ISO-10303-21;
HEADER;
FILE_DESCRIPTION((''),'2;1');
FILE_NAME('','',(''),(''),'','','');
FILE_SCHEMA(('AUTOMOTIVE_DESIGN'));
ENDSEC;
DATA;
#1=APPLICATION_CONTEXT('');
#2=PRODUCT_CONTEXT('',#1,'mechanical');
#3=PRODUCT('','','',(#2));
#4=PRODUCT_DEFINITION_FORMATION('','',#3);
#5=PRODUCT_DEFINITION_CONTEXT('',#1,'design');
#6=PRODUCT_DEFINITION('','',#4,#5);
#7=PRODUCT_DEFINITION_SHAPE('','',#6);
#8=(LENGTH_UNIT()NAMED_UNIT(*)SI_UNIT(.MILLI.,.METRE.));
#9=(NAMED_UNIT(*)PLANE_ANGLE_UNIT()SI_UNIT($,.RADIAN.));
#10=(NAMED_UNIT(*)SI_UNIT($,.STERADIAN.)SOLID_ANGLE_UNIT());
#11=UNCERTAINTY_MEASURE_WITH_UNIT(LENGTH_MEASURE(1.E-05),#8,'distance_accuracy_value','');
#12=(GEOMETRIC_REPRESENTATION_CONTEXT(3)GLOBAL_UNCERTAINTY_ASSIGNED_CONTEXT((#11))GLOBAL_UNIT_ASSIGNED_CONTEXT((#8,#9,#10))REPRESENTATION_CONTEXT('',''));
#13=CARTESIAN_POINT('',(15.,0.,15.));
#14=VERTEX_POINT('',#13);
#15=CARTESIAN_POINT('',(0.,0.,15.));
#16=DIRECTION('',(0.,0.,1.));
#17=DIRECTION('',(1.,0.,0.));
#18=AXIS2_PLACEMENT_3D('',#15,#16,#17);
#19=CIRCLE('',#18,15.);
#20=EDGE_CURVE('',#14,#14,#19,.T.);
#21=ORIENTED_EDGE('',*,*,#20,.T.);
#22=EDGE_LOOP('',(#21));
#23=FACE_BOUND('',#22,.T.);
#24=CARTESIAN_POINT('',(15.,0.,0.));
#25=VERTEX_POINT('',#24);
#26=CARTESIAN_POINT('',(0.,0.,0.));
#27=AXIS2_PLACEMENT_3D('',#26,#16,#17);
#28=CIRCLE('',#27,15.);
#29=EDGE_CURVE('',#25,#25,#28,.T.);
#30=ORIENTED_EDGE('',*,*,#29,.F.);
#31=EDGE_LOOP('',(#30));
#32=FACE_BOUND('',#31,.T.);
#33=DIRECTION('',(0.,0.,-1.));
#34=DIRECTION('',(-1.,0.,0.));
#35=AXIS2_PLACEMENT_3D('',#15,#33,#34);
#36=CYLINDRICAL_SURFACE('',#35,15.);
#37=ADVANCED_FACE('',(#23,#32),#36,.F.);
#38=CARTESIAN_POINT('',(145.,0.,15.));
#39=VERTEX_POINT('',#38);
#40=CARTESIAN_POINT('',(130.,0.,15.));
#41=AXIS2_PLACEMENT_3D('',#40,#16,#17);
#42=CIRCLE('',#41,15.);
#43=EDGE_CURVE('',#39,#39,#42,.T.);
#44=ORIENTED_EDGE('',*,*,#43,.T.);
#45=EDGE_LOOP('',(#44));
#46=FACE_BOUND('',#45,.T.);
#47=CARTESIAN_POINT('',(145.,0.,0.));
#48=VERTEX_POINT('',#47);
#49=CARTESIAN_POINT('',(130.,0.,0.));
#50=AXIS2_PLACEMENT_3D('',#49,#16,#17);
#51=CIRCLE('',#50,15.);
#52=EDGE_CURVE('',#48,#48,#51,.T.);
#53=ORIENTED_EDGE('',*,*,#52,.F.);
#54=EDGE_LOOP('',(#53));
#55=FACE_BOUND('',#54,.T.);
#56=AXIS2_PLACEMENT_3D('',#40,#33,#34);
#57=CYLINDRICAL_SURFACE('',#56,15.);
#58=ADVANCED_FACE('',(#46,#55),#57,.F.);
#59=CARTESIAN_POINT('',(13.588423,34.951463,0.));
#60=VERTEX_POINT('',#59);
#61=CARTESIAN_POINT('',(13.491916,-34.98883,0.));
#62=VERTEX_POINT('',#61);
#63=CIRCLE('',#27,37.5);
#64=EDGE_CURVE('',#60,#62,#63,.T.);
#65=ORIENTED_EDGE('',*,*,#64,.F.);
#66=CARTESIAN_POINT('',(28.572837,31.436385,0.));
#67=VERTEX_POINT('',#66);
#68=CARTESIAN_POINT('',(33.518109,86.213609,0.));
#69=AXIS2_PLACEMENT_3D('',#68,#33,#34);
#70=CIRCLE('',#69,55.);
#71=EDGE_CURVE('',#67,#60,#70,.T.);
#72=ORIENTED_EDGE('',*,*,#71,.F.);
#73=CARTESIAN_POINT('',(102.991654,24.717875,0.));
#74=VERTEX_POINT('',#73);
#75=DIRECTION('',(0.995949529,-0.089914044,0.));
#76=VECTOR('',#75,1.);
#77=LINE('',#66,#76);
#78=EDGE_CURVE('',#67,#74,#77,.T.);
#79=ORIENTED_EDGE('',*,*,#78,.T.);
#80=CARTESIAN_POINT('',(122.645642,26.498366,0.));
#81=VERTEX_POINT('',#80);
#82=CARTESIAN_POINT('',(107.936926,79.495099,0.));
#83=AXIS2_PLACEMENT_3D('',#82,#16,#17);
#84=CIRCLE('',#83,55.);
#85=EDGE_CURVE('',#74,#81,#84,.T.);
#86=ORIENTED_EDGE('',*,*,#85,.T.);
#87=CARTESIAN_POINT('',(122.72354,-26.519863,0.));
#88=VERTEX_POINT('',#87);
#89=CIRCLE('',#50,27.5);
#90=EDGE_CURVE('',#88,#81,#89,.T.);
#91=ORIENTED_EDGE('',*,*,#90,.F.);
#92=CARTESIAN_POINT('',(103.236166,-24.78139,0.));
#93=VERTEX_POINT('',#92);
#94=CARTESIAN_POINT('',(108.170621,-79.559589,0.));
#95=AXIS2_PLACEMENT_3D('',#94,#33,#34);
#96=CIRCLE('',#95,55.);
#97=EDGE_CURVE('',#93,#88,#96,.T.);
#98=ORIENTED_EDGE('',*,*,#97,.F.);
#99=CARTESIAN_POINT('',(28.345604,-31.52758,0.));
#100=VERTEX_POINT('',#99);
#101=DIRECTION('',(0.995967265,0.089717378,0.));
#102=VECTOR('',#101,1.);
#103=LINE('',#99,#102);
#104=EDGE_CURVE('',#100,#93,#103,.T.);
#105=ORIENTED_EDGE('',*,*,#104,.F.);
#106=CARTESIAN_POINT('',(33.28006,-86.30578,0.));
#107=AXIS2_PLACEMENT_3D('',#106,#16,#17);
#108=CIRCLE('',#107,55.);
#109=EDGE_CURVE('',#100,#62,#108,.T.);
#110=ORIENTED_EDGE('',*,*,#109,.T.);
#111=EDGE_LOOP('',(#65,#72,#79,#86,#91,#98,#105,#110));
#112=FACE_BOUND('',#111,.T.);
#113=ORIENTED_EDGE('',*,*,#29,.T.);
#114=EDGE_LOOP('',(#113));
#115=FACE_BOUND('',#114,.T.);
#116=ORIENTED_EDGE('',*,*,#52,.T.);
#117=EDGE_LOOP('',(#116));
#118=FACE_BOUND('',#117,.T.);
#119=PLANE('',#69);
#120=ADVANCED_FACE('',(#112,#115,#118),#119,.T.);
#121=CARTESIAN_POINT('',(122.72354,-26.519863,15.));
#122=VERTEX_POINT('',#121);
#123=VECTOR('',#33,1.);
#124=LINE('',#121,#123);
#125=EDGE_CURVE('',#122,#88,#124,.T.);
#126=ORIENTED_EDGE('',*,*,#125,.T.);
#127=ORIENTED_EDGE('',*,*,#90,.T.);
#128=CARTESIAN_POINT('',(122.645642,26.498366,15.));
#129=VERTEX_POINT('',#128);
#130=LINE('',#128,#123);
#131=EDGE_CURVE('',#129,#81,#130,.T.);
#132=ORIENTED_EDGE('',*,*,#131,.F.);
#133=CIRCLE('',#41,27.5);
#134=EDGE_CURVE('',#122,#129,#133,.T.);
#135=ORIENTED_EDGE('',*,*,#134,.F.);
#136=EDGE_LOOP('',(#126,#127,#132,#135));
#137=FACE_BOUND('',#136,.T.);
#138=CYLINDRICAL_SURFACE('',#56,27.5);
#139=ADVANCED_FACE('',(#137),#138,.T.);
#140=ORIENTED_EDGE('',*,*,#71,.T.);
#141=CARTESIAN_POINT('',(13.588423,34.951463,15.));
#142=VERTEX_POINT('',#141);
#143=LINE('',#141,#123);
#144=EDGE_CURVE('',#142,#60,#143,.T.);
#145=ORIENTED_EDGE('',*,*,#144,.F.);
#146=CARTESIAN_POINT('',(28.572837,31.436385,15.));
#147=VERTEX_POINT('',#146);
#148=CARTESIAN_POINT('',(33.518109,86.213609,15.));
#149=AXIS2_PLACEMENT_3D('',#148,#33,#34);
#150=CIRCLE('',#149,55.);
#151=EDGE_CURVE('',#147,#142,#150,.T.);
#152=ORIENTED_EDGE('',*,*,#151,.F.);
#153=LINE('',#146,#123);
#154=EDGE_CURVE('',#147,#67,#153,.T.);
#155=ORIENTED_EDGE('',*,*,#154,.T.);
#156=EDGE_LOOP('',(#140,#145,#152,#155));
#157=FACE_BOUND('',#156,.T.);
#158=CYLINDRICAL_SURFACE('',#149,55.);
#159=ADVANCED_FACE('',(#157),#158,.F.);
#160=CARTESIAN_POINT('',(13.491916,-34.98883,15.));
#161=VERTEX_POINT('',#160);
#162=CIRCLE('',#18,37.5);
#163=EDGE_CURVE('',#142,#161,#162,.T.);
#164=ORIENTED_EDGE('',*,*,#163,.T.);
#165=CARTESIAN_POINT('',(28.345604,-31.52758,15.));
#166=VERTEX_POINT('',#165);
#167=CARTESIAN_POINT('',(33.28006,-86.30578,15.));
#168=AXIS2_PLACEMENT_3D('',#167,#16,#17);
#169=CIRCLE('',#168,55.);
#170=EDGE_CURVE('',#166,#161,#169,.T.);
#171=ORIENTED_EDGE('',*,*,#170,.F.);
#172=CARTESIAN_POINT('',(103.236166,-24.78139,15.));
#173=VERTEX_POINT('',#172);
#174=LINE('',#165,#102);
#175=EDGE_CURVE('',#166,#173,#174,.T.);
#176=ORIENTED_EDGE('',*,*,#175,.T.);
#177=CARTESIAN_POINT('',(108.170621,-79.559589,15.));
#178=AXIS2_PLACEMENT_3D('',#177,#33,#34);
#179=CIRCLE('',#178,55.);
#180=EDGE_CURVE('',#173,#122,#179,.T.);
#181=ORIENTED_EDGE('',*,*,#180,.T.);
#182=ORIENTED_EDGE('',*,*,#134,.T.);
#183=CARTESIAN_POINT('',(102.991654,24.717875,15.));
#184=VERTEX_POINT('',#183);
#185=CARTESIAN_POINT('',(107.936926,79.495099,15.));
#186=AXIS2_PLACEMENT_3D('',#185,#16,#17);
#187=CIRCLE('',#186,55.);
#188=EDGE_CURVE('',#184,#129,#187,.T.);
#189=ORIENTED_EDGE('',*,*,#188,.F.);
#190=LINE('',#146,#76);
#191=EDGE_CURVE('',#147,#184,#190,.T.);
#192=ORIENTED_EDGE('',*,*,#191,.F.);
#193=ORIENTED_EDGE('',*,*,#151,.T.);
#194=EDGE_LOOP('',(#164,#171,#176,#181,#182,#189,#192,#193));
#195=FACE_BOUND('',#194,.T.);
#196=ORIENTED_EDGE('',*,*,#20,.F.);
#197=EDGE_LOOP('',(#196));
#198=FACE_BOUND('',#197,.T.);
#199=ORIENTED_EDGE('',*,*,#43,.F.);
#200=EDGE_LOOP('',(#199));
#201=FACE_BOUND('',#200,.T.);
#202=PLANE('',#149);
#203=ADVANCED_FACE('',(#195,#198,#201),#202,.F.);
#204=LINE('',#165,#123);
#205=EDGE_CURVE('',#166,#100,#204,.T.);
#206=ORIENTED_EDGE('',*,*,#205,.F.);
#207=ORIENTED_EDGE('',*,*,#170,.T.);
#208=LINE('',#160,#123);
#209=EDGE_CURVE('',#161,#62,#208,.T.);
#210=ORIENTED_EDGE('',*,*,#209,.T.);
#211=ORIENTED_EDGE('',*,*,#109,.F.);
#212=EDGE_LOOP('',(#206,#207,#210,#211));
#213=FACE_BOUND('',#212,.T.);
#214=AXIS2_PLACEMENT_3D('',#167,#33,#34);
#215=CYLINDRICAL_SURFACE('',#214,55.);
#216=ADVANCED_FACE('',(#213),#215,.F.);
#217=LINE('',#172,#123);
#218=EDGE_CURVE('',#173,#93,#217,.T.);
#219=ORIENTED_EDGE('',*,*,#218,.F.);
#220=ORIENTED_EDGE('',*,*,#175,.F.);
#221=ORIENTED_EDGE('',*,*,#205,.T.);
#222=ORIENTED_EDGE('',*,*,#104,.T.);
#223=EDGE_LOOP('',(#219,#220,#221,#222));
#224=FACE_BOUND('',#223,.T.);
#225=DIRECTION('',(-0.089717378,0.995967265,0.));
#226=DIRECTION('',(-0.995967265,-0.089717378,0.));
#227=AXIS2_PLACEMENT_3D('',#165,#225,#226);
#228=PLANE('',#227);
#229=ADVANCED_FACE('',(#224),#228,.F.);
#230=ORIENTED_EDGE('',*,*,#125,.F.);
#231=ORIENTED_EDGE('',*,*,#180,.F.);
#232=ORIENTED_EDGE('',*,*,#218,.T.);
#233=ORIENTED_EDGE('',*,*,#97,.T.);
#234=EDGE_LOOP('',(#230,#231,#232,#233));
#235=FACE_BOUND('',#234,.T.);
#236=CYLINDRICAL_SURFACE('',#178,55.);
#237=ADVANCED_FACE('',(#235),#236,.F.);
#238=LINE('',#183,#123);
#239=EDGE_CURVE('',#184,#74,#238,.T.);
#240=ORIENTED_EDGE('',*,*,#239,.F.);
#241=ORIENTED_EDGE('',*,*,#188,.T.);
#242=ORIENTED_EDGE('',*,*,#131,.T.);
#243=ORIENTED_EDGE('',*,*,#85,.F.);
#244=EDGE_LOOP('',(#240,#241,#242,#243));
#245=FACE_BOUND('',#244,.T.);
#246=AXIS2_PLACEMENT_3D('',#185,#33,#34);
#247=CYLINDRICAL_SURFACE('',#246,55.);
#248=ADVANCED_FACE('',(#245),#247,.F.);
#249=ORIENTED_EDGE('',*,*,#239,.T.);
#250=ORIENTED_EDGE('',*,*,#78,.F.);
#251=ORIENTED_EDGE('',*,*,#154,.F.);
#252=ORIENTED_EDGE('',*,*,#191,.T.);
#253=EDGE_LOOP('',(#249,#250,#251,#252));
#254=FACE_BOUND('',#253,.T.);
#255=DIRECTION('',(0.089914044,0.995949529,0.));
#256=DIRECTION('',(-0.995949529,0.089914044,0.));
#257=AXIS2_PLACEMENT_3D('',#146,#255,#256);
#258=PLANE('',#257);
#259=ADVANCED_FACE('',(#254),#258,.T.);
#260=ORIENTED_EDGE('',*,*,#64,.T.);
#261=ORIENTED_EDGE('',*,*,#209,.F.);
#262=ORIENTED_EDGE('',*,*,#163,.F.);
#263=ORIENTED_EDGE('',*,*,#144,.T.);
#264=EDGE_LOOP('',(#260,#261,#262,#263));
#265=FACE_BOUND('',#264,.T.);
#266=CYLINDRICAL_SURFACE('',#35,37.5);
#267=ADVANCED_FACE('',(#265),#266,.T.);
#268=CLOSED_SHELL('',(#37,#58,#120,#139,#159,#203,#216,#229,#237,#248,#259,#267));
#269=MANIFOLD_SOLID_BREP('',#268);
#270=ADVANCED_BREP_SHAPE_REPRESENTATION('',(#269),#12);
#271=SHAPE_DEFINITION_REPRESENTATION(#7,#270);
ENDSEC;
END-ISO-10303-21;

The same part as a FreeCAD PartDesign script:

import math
import FreeCAD as App
import Part
import Sketcher
from FreeCAD import Vector

doc = App.newDocument("Part")
body = doc.addObject("PartDesign::Body", "Body")

sketch1 = doc.addObject("Sketcher::SketchObject", "Sketch")
body.addObject(sketch1)
sketch1.AttachmentSupport = (doc.XY_Plane, [""])
sketch1.MapMode = "FlatFace"
sketch1.addGeometry(Part.LineSegment(Vector(102.991654, 24.717875, 0), Vector(28.572837, 31.436385, 0)), False)
sketch1.addGeometry(Part.ArcOfCircle(Part.Circle(Vector(33.518109, 86.213609, 0), Vector(0, 0, 1), 55), math.radians(-111.245076), math.radians(-95.158662)), False)
sketch1.addGeometry(Part.ArcOfCircle(Part.Circle(Vector(0, 0, 0), Vector(0, 0, 1), 37.5), math.radians(68.754924), math.radians(291.086958)), False)
sketch1.addGeometry(Part.ArcOfCircle(Part.Circle(Vector(33.28006, -86.30578, 0), Vector(0, 0, 1), 55), math.radians(95.147348), math.radians(111.086958)), False)
sketch1.addGeometry(Part.LineSegment(Vector(28.345604, -31.52758, 0), Vector(103.236166, -24.78139, 0)), False)
sketch1.addGeometry(Part.ArcOfCircle(Part.Circle(Vector(108.170621, -79.559589, 0), Vector(0, 0, 1), 55), math.radians(74.656901), math.radians(95.147348)), False)
sketch1.addGeometry(Part.ArcOfCircle(Part.Circle(Vector(130, 0, 0), Vector(0, 0, 1), 27.5), math.radians(-105.343099), math.radians(105.511465)), False)
sketch1.addGeometry(Part.ArcOfCircle(Part.Circle(Vector(107.936926, 79.495099, 0), Vector(0, 0, 1), 55), math.radians(-95.158662), math.radians(-74.488535)), False)
sketch1.addGeometry(Part.Circle(Vector(130, 0, 0), Vector(0, 0, 1), 15), False)
sketch1.addGeometry(Part.Circle(Vector(0, 0, 0), Vector(0, 0, 1), 15), False)
sketch1.addConstraint(Sketcher.Constraint("Coincident", 0, 2, 1, 2))
sketch1.addConstraint(Sketcher.Constraint("Coincident", 1, 1, 2, 1))
sketch1.addConstraint(Sketcher.Constraint("Coincident", 2, 2, 3, 2))
sketch1.addConstraint(Sketcher.Constraint("Coincident", 3, 1, 4, 1))
sketch1.addConstraint(Sketcher.Constraint("Coincident", 4, 2, 5, 2))
sketch1.addConstraint(Sketcher.Constraint("Coincident", 5, 1, 6, 1))
sketch1.addConstraint(Sketcher.Constraint("Coincident", 6, 2, 7, 2))
sketch1.addConstraint(Sketcher.Constraint("Coincident", 7, 1, 0, 1))
sketch1.addConstraint(Sketcher.Constraint("Coincident", 2, 3, -1, 1))
sketch1.addConstraint(Sketcher.Constraint("Coincident", 9, 3, -1, 1))
sketch1.addConstraint(Sketcher.Constraint("Coincident", 8, 3, 6, 3))
sketch1.addConstraint(Sketcher.Constraint("PointOnObject", 6, 3, -1))
sketch1.addConstraint(Sketcher.Constraint("Diameter", 8, 30.0))
sketch1.addConstraint(Sketcher.Constraint("Diameter", 9, 30.0))
sketch1.addConstraint(Sketcher.Constraint("Radius", 1, 55.0))
sketch1.addConstraint(Sketcher.Constraint("Radius", 3, 55.0))
sketch1.addConstraint(Sketcher.Constraint("Radius", 5, 55.0))
sketch1.addConstraint(Sketcher.Constraint("Radius", 7, 55.0))
sketch1.addConstraint(Sketcher.Constraint("Radius", 2, 37.5))
sketch1.addConstraint(Sketcher.Constraint("Radius", 6, 27.5))
sketch1.addConstraint(Sketcher.Constraint("DistanceX", -1, 1, 6, 3, 130.0))
sketch1.addConstraint(Sketcher.Constraint("DistanceY", -1, 1, 7, 3, 79.495099))
sketch1.addConstraint(Sketcher.Constraint("DistanceY", 5, 3, 1, 3, 165.773198))
sketch1.addConstraint(Sketcher.Constraint("DistanceY", 3, 3, 3, 1, 54.7782))
sketch1.addConstraint(Sketcher.Constraint("DistanceY", 5, 3, 4, 2, 54.7782))
sketch1.addConstraint(Sketcher.Constraint("DistanceX", 6, 2, 5, 1, 0.077898))
sketch1.addConstraint(Sketcher.Constraint("DistanceX", -1, 1, 1, 3, 33.518109))
sketch1.addConstraint(Sketcher.Constraint("DistanceX", -1, 1, 3, 3, 33.28006))
sketch1.addConstraint(Sketcher.Constraint("DistanceY", 2, 2, -1, 1, 34.98883))
sketch1.addConstraint(Sketcher.Constraint("DistanceX", -1, 1, 5, 1, 122.72354))
sketch1.addConstraint(Sketcher.Constraint("DistanceX", 0, 2, 7, 3, 79.36409))
sketch1.addConstraint(Sketcher.Constraint("DistanceY", 0, 2, 1, 1, 3.515078))
sketch1.addConstraint(Sketcher.Constraint("DistanceX", 7, 1, 6, 2, 19.653988))
pad1 = doc.addObject("PartDesign::Pad", "Pad")
body.addObject(pad1)
pad1.Profile = sketch1
pad1.Length = 15

doc.recompute()
